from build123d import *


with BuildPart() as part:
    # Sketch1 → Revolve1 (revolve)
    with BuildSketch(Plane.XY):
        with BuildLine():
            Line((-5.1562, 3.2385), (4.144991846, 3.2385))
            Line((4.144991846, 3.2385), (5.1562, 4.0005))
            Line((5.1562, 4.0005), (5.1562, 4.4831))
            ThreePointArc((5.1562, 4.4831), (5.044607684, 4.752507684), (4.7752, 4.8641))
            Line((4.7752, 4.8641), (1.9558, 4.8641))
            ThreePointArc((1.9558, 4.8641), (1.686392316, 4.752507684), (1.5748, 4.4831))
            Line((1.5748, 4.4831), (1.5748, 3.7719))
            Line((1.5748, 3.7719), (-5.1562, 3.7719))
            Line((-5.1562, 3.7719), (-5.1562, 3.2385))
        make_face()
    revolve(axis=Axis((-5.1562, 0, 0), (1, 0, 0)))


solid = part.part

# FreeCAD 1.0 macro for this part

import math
import FreeCAD as App
import Part
import Sketcher

V = App.Vector
Q = App.Units.Quantity

doc = App.newDocument("Part")
params = doc.addObject("Spreadsheet::Sheet", "Params")
for row, (alias, value) in enumerate([
    ("sketch1_radius", "0.015 in"),
    ("sketch1_width", "0.111 in"),
    ("sketch1_width2", "0.265 in"),
    ("sketch1_height", "0.019 in"),
    ("sketch1_height2", "0.028 in"),
    ("revolution_angle", "360 deg"),
], start=1):
    params.set(f"A{row}", alias)
    params.set(f"B{row}", "=" + value)
    params.setAlias(f"B{row}", alias)

body = doc.addObject("PartDesign::Body", "Body")

sketch1 = body.newObject("Sketcher::SketchObject", "Sketch")
sketch1.AttachmentSupport = (doc.getObject("XY_Plane"), [""])
sketch1.MapMode = "FlatFace"
sketch1.addGeometry(Part.LineSegment(V(-5.16, 3.24, 0), V(4.14, 3.24, 0)), False)
sketch1.addGeometry(Part.LineSegment(V(4.14, 3.24, 0), V(5.16, 4, 0)), False)
sketch1.addGeometry(Part.LineSegment(V(5.16, 4, 0), V(5.16, 4.48, 0)), False)
sketch1.addGeometry(Part.ArcOfCircle(Part.Circle(V(4.78, 4.48, 0), V(0, 0, 1), 0.38), math.radians(0), math.radians(90)), False)
sketch1.addGeometry(Part.LineSegment(V(4.78, 4.86, 0), V(1.96, 4.86, 0)), False)
sketch1.addGeometry(Part.ArcOfCircle(Part.Circle(V(1.96, 4.48, 0), V(0, 0, 1), 0.38), math.radians(90), math.radians(180)), False)
sketch1.addGeometry(Part.LineSegment(V(1.57, 4.48, 0), V(1.57, 3.77, 0)), False)
sketch1.addGeometry(Part.LineSegment(V(1.57, 3.77, 0), V(-5.16, 3.77, 0)), False)
sketch1.addGeometry(Part.LineSegment(V(-5.16, 3.77, 0), V(-5.16, 3.24, 0)), False)
sketch1.addConstraint(Sketcher.Constraint("Coincident", 0, 2, 1, 1))
sketch1.addConstraint(Sketcher.Constraint("Coincident", 1, 2, 2, 1))
sketch1.addConstraint(Sketcher.Constraint("Tangent", 2, 2, 3, 1))
sketch1.addConstraint(Sketcher.Constraint("Tangent", 3, 2, 4, 1))
sketch1.addConstraint(Sketcher.Constraint("Tangent", 4, 2, 5, 1))
sketch1.addConstraint(Sketcher.Constraint("Tangent", 5, 2, 6, 1))
sketch1.addConstraint(Sketcher.Constraint("Coincident", 6, 2, 7, 1))
sketch1.addConstraint(Sketcher.Constraint("Coincident", 7, 2, 8, 1))
sketch1.addConstraint(Sketcher.Constraint("Coincident", 8, 2, 0, 1))
sketch1.addConstraint(Sketcher.Constraint("Horizontal", 0))
sketch1.addConstraint(Sketcher.Constraint("Vertical", 2))
sketch1.addConstraint(Sketcher.Constraint("Horizontal", 4))
sketch1.addConstraint(Sketcher.Constraint("Vertical", 6))
sketch1.addConstraint(Sketcher.Constraint("Horizontal", 7))
sketch1.addConstraint(Sketcher.Constraint("Vertical", 8))
sketch1.addConstraint(Sketcher.Constraint("Equal", 3, 5))
sketch1.addConstraint(Sketcher.Constraint("Angle", 1, Q("37 deg")))
sketch1.addConstraint(Sketcher.Constraint("Radius", 3, Q("0.015 in")))
sketch1.addConstraint(Sketcher.Constraint("DistanceX", 4, 2, 4, 1, Q("0.111 in")))
sketch1.addConstraint(Sketcher.Constraint("DistanceX", 7, 2, 7, 1, Q("0.265 in")))
sketch1.addConstraint(Sketcher.Constraint("DistanceY", 2, 1, 2, 2, Q("0.019 in")))
sketch1.addConstraint(Sketcher.Constraint("DistanceY", 6, 2, 6, 1, Q("0.028 in")))
sketch1.addConstraint(Sketcher.Constraint("DistanceY", 8, 2, 8, 1, Q("0.021 in")))
sketch1.addConstraint(Sketcher.Constraint("DistanceX", -1, 1, 3, 3, Q("0.188 in")))
sketch1.addConstraint(Sketcher.Constraint("DistanceY", -1, 1, 3, 3, Q("0.1765 in")))
sketch1.setExpression("Constraints[17]", "Params.sketch1_radius")
sketch1.setExpression("Constraints[18]", "Params.sketch1_width")
sketch1.setExpression("Constraints[19]", "Params.sketch1_width2")
sketch1.setExpression("Constraints[20]", "Params.sketch1_height")
sketch1.setExpression("Constraints[21]", "Params.sketch1_height2")
revolution = body.newObject("PartDesign::Revolution", "Revolution")
revolution.Profile = sketch1
revolution.ReferenceAxis = (sketch1, ["H_Axis"])
revolution.setExpression("Angle", "Params.revolution_angle")

doc.recompute()
